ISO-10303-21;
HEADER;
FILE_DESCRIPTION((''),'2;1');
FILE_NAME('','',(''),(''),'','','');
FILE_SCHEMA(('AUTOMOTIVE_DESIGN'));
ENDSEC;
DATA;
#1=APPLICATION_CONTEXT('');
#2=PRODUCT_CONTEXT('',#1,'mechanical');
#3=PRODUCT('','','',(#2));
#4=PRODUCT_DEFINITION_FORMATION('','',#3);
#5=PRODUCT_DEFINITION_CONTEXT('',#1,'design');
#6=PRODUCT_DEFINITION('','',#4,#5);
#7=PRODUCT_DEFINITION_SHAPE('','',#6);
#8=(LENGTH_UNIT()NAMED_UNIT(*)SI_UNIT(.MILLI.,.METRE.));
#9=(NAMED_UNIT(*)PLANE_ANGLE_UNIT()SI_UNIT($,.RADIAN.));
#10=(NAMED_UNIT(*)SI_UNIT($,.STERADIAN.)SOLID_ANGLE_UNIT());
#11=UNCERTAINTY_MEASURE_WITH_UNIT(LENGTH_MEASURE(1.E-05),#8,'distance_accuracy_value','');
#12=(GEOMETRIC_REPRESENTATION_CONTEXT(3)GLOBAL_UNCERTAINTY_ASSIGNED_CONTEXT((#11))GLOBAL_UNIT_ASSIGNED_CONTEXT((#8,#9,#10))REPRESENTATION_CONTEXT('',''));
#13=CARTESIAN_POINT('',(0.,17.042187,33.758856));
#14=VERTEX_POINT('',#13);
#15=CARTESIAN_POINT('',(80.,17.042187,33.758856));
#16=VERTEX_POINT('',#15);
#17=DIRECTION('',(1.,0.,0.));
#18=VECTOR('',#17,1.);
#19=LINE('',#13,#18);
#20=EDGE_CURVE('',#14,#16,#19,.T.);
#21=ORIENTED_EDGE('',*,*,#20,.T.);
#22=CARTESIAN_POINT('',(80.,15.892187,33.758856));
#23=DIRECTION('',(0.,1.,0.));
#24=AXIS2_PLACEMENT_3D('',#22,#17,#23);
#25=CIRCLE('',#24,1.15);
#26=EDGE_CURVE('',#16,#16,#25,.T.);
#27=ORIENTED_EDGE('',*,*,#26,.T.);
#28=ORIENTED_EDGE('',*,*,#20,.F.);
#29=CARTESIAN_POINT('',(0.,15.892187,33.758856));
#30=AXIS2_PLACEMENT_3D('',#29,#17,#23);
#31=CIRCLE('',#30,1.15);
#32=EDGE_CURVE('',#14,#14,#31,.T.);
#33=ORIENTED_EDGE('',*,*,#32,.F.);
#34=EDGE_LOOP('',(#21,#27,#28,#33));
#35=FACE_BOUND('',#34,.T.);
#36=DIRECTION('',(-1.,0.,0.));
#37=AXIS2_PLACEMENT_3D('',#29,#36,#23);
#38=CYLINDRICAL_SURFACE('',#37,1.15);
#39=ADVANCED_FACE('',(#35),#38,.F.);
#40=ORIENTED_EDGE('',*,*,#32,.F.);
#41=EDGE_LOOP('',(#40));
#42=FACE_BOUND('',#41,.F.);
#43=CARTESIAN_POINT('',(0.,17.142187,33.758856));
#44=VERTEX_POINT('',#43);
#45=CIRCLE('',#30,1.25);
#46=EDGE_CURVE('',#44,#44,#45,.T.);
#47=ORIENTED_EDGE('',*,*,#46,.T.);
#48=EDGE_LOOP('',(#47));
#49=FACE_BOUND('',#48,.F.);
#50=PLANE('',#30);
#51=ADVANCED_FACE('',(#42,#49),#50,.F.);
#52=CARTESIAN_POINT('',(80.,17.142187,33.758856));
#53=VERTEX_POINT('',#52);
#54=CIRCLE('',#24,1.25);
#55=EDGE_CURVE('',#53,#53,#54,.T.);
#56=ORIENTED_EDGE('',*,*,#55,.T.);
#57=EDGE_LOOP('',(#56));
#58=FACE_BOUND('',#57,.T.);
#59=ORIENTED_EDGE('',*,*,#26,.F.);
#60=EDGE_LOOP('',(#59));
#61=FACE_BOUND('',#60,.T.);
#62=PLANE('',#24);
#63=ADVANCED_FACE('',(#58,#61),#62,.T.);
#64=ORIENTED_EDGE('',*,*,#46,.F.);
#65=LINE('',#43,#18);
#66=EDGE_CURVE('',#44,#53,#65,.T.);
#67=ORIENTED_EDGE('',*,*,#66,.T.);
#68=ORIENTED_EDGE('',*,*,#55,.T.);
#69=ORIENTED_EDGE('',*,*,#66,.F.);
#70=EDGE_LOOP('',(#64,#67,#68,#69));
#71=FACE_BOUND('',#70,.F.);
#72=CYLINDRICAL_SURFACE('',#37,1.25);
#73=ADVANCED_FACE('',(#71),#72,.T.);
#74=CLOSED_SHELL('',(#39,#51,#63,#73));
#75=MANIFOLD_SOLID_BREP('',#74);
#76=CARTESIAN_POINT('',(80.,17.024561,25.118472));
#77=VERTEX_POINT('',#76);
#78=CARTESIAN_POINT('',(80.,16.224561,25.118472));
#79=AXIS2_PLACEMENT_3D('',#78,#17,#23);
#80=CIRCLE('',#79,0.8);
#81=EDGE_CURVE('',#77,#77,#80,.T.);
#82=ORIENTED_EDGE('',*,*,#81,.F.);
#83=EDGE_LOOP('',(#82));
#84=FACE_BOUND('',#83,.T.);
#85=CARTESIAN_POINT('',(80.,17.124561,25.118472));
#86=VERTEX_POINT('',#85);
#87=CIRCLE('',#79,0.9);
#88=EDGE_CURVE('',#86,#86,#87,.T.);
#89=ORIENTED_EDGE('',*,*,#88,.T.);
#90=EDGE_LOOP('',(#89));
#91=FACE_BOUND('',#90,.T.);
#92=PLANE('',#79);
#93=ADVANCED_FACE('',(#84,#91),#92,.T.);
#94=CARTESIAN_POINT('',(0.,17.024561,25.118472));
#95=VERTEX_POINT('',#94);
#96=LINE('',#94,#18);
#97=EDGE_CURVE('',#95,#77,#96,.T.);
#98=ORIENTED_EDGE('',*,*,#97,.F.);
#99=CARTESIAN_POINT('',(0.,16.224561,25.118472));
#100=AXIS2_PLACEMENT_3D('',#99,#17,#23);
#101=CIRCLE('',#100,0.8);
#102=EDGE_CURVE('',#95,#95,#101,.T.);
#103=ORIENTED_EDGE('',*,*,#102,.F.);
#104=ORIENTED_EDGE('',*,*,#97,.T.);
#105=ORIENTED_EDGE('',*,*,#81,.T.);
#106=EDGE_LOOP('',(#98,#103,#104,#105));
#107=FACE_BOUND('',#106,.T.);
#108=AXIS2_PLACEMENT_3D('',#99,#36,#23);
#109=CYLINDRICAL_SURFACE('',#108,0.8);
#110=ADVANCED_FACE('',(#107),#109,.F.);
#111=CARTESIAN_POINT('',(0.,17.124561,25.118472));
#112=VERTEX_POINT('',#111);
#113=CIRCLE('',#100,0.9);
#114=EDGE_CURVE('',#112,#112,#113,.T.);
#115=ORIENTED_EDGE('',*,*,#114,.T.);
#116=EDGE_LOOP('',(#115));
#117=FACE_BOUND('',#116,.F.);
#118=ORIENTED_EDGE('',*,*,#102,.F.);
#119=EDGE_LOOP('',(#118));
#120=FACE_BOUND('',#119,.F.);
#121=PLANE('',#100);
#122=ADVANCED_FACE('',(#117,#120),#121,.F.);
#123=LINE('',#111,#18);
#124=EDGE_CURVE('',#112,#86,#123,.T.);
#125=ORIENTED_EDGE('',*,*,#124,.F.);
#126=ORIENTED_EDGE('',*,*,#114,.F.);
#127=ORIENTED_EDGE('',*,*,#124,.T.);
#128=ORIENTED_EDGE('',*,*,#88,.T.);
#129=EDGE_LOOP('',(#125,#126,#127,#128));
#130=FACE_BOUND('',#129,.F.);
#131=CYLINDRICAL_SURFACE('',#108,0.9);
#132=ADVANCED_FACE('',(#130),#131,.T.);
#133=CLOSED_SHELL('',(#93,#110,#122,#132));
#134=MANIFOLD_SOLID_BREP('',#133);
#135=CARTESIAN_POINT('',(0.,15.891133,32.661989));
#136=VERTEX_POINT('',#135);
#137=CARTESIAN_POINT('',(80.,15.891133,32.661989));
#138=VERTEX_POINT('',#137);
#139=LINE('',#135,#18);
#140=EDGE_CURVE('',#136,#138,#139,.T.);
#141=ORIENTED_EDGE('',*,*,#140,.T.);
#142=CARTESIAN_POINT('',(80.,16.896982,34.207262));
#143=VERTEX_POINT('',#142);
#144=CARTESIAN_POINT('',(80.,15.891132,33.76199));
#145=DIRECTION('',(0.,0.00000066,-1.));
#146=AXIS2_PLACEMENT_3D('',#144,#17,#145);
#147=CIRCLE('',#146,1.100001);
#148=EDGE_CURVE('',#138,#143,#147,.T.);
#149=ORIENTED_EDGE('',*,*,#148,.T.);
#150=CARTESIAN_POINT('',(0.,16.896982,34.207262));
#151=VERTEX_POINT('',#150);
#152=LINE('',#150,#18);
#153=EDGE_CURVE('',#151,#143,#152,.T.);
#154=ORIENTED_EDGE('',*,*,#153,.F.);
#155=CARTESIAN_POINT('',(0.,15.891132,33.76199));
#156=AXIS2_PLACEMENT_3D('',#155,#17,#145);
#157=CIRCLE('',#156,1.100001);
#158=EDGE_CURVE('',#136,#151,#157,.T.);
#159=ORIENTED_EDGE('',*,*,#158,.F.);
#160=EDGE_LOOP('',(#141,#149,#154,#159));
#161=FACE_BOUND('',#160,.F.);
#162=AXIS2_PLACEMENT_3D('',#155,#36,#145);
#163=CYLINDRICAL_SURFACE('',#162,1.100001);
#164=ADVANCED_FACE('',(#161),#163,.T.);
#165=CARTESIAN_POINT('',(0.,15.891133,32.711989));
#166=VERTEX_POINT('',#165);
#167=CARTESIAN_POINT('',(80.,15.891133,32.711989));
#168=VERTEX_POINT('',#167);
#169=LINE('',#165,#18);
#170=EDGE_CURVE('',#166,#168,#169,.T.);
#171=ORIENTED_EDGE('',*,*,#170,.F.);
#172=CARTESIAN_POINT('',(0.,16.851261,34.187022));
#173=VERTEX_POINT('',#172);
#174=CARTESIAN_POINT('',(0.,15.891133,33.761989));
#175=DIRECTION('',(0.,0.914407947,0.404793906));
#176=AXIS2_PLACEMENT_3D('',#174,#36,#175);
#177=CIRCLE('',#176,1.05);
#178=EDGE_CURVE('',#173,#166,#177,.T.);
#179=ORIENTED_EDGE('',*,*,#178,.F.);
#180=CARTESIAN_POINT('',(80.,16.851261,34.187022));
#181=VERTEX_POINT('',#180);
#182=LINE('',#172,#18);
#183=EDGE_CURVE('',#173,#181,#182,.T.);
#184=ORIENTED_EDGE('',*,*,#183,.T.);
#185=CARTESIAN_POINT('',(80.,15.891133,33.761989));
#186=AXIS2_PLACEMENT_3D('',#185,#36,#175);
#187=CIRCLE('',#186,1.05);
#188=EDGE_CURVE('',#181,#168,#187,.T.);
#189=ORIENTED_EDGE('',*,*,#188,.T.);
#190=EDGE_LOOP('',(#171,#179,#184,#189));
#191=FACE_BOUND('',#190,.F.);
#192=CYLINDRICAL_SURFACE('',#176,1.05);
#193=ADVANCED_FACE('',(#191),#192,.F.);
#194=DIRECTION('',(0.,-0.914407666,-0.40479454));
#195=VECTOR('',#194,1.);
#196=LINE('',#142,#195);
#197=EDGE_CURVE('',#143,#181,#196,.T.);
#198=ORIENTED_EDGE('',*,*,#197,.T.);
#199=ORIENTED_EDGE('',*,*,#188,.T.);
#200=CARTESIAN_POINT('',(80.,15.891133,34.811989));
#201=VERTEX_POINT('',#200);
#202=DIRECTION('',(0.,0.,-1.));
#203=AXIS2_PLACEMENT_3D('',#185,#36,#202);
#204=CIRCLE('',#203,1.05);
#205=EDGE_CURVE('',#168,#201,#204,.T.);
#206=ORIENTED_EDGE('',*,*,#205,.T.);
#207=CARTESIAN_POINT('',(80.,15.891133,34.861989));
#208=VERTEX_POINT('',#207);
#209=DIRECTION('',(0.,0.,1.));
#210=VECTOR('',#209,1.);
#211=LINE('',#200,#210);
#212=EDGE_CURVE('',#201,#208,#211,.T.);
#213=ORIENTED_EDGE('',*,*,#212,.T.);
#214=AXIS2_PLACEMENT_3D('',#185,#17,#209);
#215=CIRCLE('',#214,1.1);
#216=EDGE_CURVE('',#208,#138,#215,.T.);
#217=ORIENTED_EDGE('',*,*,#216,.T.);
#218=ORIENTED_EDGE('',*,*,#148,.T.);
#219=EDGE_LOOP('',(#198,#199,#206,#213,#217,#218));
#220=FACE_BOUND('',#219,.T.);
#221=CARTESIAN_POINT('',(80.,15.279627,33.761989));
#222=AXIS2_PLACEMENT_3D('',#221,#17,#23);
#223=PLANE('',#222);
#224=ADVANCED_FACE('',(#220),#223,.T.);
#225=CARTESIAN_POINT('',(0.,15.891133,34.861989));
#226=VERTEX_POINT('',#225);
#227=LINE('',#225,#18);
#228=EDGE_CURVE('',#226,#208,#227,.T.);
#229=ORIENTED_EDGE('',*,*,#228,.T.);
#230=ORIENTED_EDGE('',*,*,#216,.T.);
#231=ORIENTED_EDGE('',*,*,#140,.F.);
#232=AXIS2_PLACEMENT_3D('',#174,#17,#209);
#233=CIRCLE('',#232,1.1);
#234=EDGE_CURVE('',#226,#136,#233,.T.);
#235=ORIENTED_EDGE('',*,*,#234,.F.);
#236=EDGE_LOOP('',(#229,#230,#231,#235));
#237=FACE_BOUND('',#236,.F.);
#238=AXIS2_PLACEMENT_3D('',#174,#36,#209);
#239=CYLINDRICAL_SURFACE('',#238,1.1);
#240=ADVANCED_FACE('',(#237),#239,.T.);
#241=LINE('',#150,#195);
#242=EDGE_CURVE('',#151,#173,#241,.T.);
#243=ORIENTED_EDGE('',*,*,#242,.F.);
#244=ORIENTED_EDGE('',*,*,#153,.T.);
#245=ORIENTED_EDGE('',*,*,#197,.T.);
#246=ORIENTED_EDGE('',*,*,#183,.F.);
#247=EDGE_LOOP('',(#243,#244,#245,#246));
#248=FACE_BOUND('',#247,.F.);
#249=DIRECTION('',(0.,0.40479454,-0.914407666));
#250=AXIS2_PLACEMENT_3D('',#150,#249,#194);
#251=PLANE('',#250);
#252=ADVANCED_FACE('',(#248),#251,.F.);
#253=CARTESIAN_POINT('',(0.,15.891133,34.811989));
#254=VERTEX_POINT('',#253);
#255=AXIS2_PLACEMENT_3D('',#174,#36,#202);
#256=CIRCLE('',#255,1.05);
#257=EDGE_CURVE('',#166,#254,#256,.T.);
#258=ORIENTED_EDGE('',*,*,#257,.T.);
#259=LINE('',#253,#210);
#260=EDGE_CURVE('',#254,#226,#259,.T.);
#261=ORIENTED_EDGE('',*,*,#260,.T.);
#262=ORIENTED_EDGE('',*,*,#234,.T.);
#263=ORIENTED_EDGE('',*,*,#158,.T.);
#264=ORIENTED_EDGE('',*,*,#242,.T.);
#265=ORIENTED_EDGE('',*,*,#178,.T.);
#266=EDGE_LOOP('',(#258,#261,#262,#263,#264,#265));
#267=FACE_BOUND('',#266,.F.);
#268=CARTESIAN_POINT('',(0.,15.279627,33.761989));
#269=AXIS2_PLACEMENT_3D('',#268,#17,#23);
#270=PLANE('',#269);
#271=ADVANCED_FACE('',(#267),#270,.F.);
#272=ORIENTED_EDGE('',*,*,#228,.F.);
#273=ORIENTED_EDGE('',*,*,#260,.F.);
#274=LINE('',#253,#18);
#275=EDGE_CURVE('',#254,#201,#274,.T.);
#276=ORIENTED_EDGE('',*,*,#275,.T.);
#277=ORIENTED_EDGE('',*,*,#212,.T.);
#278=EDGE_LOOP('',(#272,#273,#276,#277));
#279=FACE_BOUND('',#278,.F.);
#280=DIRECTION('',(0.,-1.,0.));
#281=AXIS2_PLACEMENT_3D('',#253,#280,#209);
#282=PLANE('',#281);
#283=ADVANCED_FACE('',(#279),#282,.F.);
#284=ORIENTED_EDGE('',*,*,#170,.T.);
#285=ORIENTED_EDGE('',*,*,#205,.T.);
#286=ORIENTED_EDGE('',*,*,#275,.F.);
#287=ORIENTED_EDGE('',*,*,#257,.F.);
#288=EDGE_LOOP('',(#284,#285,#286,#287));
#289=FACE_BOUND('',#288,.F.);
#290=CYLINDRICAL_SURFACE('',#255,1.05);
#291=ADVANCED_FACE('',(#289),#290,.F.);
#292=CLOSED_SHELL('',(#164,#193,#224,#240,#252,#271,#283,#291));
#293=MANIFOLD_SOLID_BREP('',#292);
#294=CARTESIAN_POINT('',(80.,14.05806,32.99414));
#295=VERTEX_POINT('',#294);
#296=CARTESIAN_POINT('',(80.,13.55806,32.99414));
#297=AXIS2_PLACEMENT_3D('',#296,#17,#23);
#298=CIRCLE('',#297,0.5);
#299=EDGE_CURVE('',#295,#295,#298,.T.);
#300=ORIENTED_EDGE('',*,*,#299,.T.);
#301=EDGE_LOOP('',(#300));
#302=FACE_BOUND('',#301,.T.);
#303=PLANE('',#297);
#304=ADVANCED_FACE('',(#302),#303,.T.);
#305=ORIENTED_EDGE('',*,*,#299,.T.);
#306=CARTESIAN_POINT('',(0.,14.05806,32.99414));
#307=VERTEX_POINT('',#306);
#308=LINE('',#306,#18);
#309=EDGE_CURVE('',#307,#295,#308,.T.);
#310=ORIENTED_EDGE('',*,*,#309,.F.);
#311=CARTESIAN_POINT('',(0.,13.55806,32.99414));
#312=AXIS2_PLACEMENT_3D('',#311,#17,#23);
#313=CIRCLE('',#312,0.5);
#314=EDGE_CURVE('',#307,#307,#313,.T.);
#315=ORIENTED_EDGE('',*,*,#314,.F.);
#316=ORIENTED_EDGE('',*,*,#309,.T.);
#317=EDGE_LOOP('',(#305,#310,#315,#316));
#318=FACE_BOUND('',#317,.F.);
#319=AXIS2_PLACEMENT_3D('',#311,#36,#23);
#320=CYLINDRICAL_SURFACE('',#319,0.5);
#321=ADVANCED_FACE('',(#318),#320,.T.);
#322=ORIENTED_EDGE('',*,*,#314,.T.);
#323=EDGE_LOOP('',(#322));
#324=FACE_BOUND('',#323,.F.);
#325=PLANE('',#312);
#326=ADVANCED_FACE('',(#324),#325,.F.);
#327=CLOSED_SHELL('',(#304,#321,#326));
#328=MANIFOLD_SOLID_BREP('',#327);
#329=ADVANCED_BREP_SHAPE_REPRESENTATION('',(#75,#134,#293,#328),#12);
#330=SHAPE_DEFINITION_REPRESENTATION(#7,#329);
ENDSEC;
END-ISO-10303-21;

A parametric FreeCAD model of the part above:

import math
import FreeCAD as App
import Part
import Sketcher
from FreeCAD import Vector

doc = App.newDocument("Part")
body = doc.addObject("PartDesign::Body", "Body")

sketch1 = body.newObject("Sketcher::SketchObject", "Sketch")
sketch1.AttachmentSupport = (doc.getObject("YZ_Plane"), [""])
sketch1.MapMode = "FlatFace"
sketch1.addGeometry(Part.Circle(Vector(15.9, 33.8, 0), Vector(0, 0, 1), 1.2), False)
sketch1.addGeometry(Part.Circle(Vector(15.9, 33.8, 0), Vector(0, 0, 1), 1.1), False)
sketch1.addConstraint(Sketcher.Constraint("Coincident", 1, 3, 0, 3))
sketch1.addConstraint(Sketcher.Constraint("Diameter", 0, 2.5))
sketch1.addConstraint(Sketcher.Constraint("Diameter", 1, 2.3))
sketch1.addConstraint(Sketcher.Constraint("DistanceX", -1, 1, 0, 3, 15.892187))
sketch1.addConstraint(Sketcher.Constraint("DistanceY", -1, 1, 0, 3, 33.758856))
pad1 = body.newObject("PartDesign::Pad", "Pad")
pad1.Profile = sketch1
pad1.Length = 80
body2 = doc.addObject("PartDesign::Body", "Body001")

sketch2 = body2.newObject("Sketcher::SketchObject", "Sketch001")
sketch2.AttachmentSupport = (doc.getObject("YZ_Plane001"), [""])
sketch2.MapMode = "FlatFace"
sketch2.addGeometry(Part.Circle(Vector(16.2, 25.1, 0), Vector(0, 0, 1), 0.9), False)
sketch2.addGeometry(Part.Circle(Vector(16.2, 25.1, 0), Vector(0, 0, 1), 0.8), False)
sketch2.addConstraint(Sketcher.Constraint("Coincident", 1, 3, 0, 3))
sketch2.addConstraint(Sketcher.Constraint("Diameter", 0, 1.8))
sketch2.addConstraint(Sketcher.Constraint("Diameter", 1, 1.6))
sketch2.addConstraint(Sketcher.Constraint("DistanceX", -1, 1, 0, 3, 16.224561))
sketch2.addConstraint(Sketcher.Constraint("DistanceY", -1, 1, 0, 3, 25.118472))
pad2 = body2.newObject("PartDesign::Pad", "Pad001")
pad2.Profile = sketch2
pad2.Length = 80
body3 = doc.addObject("PartDesign::Body", "Body002")

sketch3 = body3.newObject("Sketcher::SketchObject", "Sketch002")
sketch3.AttachmentSupport = (doc.getObject("YZ_Plane002"), [""])
sketch3.MapMode = "FlatFace"
sketch3.addGeometry(Part.LineSegment(Vector(15.89, 34.81, 0), Vector(15.89, 34.86, 0)), False)
sketch3.addGeometry(Part.ArcOfCircle(Part.Circle(Vector(15.89, 33.76, 0), Vector(0, 0, 1), 1.1), math.radians(90), math.radians(270)), False)
sketch3.addGeometry(Part.ArcOfCircle(Part.Circle(Vector(15.89, 33.76, 0), Vector(0, 0, 1), 1.1), math.radians(-90), math.radians(24)), False)
sketch3.addGeometry(Part.LineSegment(Vector(16.9, 34.21, 0), Vector(16.85, 34.19, 0)), False)
sketch3.addGeometry(Part.ArcOfCircle(Part.Circle(Vector(15.89, 33.76, 0), Vector(0, 0, 1), 1.05), math.radians(-90), math.radians(24)), False)
sketch3.addGeometry(Part.ArcOfCircle(Part.Circle(Vector(15.89, 33.76, 0), Vector(0, 0, 1), 1.05), math.radians(90), math.radians(270)), False)
sketch3.addConstraint(Sketcher.Constraint("Coincident", 0, 2, 1, 1))
sketch3.addConstraint(Sketcher.Constraint("Tangent", 1, 2, 2, 1))
sketch3.addConstraint(Sketcher.Constraint("Coincident", 2, 2, 3, 1))
sketch3.addConstraint(Sketcher.Constraint("Coincident", 3, 2, 4, 2))
sketch3.addConstraint(Sketcher.Constraint("Tangent", 4, 1, 5, 2))
sketch3.addConstraint(Sketcher.Constraint("Coincident", 5, 1, 0, 1))
sketch3.addConstraint(Sketcher.Constraint("Vertical", 0))
sketch3.addConstraint(Sketcher.Constraint("Coincident", 4, 3, 1, 3))
sketch3.addConstraint(Sketcher.Constraint("Equal", 1, 2))
sketch3.addConstraint(Sketcher.Constraint("Equal", 4, 5))
sketch3.addConstraint(Sketcher.Constraint("Vertical", 5, 3, 0, 2))
sketch3.addConstraint(Sketcher.Constraint("Vertical", 0, 2, 1, 2))
sketch3.addConstraint(Sketcher.Constraint("Vertical", 1, 2, 4, 1))
sketch3.addConstraint(Sketcher.Constraint("Radius", 1, 1.1))
sketch3.addConstraint(Sketcher.Constraint("Radius", 4, 1.05))
sketch3.addConstraint(Sketcher.Constraint("DistanceY", -1, 1, 1, 3, 33.761989))
sketch3.addConstraint(Sketcher.Constraint("DistanceX", -1, 1, 2, 2, 16.896982))
sketch3.addConstraint(Sketcher.Constraint("DistanceY", -1, 1, 2, 2, 34.207262))
sketch3.addConstraint(Sketcher.Constraint("DistanceX", -1, 1, 3, 2, 16.851261))
pad3 = body3.newObject("PartDesign::Pad", "Pad002")
pad3.Profile = sketch3
pad3.Length = 80
body4 = doc.addObject("PartDesign::Body", "Body003")

sketch4 = body4.newObject("Sketcher::SketchObject", "Sketch003")
sketch4.AttachmentSupport = (doc.getObject("YZ_Plane003"), [""])
sketch4.MapMode = "FlatFace"
sketch4.addGeometry(Part.Circle(Vector(13.6, 33, 0), Vector(0, 0, 1), 0.5), False)
sketch4.addConstraint(Sketcher.Constraint("Diameter", 0, 1.0))
sketch4.addConstraint(Sketcher.Constraint("DistanceX", -1, 1, 0, 3, 13.55806))
sketch4.addConstraint(Sketcher.Constraint("DistanceY", -1, 1, 0, 3, 32.99414))
pad4 = body4.newObject("PartDesign::Pad", "Pad003")
pad4.Profile = sketch4
pad4.Length = 80

doc.recompute()
